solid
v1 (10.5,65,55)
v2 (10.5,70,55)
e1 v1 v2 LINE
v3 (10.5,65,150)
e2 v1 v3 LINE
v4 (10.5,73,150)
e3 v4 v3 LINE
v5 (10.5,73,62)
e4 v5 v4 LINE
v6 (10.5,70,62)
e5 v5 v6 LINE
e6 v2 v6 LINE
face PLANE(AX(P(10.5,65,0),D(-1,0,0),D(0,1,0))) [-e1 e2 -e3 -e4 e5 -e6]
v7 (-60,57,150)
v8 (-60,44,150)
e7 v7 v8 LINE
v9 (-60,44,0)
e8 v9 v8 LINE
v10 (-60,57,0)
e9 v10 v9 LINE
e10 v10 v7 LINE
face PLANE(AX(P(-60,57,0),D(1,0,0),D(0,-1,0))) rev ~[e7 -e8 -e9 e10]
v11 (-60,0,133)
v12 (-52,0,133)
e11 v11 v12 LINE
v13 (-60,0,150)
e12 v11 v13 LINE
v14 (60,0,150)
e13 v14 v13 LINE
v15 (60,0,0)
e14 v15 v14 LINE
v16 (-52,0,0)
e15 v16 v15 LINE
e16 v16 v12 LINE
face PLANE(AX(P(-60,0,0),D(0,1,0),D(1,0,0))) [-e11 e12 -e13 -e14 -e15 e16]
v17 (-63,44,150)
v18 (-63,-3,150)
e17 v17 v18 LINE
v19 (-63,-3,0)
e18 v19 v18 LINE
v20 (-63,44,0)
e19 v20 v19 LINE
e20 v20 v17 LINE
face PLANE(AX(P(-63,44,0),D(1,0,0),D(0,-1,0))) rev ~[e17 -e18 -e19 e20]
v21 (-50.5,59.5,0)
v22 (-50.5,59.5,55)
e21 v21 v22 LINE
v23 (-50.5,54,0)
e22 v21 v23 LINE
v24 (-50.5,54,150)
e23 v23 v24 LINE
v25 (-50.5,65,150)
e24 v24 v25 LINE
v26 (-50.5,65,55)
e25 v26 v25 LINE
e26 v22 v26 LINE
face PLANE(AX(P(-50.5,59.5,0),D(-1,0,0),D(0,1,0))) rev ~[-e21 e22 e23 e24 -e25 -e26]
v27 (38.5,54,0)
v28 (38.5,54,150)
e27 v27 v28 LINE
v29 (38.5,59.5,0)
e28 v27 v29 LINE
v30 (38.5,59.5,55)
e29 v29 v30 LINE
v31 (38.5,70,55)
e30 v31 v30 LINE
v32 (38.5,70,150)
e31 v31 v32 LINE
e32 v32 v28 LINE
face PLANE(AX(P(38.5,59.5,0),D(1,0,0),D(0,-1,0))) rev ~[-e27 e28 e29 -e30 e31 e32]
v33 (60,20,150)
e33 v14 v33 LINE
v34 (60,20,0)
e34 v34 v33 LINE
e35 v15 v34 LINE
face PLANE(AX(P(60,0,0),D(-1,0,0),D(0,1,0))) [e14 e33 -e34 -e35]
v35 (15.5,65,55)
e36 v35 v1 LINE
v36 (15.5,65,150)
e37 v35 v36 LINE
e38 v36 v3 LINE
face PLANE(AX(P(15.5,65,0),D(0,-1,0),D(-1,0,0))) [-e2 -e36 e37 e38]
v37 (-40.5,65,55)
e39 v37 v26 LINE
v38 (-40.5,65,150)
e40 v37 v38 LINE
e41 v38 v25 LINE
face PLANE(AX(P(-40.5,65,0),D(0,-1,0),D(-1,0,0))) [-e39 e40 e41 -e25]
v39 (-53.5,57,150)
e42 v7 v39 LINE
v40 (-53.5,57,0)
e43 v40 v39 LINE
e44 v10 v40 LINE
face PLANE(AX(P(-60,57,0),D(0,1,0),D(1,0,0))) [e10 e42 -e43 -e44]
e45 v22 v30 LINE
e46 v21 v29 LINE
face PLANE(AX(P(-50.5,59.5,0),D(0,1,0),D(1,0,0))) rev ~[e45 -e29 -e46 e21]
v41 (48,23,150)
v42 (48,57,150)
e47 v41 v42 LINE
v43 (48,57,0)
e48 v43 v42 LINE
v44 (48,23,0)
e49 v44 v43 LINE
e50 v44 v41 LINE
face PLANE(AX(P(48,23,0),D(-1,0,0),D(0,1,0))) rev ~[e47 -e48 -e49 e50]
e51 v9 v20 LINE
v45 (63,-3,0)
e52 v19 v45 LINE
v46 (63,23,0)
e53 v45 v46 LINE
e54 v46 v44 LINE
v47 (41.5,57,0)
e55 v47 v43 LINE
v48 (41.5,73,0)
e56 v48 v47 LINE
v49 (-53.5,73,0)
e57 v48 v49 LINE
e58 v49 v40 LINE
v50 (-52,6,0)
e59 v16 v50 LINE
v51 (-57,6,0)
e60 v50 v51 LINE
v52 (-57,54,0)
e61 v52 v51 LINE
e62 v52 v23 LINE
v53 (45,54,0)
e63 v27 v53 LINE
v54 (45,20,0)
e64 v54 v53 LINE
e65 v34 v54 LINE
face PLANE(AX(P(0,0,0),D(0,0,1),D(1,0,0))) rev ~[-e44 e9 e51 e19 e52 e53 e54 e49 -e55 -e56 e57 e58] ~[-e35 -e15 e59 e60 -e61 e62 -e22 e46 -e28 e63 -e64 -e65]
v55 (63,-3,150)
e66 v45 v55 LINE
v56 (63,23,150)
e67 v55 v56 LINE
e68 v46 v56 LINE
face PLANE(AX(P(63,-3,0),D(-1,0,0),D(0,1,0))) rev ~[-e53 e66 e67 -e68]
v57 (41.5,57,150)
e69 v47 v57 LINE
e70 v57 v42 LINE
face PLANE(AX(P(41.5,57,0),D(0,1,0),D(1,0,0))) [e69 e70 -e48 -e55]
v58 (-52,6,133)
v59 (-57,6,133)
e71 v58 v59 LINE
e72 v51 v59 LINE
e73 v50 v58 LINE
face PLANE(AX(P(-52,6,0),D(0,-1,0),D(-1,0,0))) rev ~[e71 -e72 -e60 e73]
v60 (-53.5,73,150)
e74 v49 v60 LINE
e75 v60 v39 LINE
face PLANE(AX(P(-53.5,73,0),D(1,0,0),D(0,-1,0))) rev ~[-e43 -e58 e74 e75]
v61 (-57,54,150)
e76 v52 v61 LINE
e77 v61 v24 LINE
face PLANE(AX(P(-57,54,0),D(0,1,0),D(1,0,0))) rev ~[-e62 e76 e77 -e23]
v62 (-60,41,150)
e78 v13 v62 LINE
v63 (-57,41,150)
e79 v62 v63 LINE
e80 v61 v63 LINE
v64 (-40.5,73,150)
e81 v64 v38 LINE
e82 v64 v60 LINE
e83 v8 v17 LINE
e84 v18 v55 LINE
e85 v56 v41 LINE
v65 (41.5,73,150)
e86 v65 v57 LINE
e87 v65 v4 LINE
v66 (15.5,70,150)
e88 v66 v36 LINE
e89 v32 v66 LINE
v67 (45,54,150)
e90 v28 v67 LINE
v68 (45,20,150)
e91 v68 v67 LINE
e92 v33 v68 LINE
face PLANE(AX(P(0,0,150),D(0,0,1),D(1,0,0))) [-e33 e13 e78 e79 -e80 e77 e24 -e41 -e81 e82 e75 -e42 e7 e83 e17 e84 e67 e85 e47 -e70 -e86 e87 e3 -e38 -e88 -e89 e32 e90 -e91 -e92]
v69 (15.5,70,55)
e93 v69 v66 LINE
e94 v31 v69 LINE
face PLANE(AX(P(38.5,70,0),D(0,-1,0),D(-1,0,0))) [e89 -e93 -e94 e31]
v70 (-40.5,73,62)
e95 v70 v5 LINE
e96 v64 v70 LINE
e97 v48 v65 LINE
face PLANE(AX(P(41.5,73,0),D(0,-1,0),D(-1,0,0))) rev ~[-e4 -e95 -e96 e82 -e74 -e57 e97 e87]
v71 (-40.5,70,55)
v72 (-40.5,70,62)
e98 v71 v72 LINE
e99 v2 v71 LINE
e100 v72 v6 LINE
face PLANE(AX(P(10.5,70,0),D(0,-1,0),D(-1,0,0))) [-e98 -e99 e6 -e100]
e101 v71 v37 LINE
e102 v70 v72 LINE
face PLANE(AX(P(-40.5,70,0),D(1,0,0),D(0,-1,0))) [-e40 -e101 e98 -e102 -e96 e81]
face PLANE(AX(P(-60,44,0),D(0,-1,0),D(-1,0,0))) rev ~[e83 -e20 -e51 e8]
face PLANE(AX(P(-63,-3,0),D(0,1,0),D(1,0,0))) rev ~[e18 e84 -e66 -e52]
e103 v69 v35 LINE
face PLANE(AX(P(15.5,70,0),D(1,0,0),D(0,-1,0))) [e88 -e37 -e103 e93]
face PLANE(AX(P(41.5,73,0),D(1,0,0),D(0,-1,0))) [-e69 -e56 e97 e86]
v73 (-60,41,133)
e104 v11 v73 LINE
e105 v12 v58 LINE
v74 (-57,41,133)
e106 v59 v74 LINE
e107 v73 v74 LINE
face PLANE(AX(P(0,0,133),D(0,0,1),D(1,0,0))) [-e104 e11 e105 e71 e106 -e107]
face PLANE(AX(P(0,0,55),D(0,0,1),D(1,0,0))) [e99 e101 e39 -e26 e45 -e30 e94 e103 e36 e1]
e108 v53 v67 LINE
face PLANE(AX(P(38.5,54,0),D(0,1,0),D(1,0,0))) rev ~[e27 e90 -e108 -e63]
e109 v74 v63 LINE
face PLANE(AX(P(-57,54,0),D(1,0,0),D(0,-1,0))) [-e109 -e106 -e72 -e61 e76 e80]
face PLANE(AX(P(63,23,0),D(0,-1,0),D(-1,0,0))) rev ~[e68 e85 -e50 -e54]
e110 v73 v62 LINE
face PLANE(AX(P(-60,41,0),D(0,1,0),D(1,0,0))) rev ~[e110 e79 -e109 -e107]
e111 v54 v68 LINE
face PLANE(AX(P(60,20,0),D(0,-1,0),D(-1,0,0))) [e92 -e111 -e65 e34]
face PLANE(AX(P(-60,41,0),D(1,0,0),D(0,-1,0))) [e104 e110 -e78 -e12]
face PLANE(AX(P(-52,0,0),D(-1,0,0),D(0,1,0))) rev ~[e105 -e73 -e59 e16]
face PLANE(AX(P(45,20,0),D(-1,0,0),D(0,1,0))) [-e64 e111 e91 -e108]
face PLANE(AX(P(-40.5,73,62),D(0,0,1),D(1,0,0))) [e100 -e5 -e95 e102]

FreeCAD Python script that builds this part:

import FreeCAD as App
import Part
import Sketcher
from FreeCAD import Vector
Q = App.Units.Quantity

doc = App.newDocument("Part")
body = doc.addObject("PartDesign::Body", "Body")

sketch1 = body.newObject("Sketcher::SketchObject", "Sketch")
sketch1.AttachmentSupport = (doc.getObject("XY_Plane"), [""])
sketch1.MapMode = "FlatFace"
sketch1.addGeometry(Part.LineSegment(Vector(-53.5, 57, 0), Vector(-60, 57, 0)), False)
sketch1.addGeometry(Part.LineSegment(Vector(-60, 57, 0), Vector(-60, 44, 0)), False)
sketch1.addGeometry(Part.LineSegment(Vector(-60, 44, 0), Vector(-63, 44, 0)), False)
sketch1.addGeometry(Part.LineSegment(Vector(-63, 44, 0), Vector(-63, -3, 0)), False)
sketch1.addGeometry(Part.LineSegment(Vector(-63, -3, 0), Vector(63, -3, 0)), False)
sketch1.addGeometry(Part.LineSegment(Vector(63, -3, 0), Vector(63, 23, 0)), False)
sketch1.addGeometry(Part.LineSegment(Vector(63, 23, 0), Vector(48, 23, 0)), False)
sketch1.addGeometry(Part.LineSegment(Vector(48, 23, 0), Vector(48, 57, 0)), False)
sketch1.addGeometry(Part.LineSegment(Vector(48, 57, 0), Vector(41.5, 57, 0)), False)
sketch1.addGeometry(Part.LineSegment(Vector(41.5, 57, 0), Vector(41.5, 73, 0)), False)
sketch1.addGeometry(Part.LineSegment(Vector(41.5, 73, 0), Vector(-53.5, 73, 0)), False)
sketch1.addGeometry(Part.LineSegment(Vector(-53.5, 73, 0), Vector(-53.5, 57, 0)), False)
sketch1.addGeometry(Part.LineSegment(Vector(-40.5, 65, 0), Vector(-40.5, 70, 0)), False)
sketch1.addGeometry(Part.LineSegment(Vector(-40.5, 70, 0), Vector(10.5, 70, 0)), False)
sketch1.addGeometry(Part.LineSegment(Vector(10.5, 70, 0), Vector(10.5, 65, 0)), False)
sketch1.addGeometry(Part.LineSegment(Vector(10.5, 65, 0), Vector(15.5, 65, 0)), False)
sketch1.addGeometry(Part.LineSegment(Vector(15.5, 65, 0), Vector(15.5, 70, 0)), False)
sketch1.addGeometry(Part.LineSegment(Vector(15.5, 70, 0), Vector(38.5, 70, 0)), False)
sketch1.addGeometry(Part.LineSegment(Vector(38.5, 70, 0), Vector(38.5, 54, 0)), False)
sketch1.addGeometry(Part.LineSegment(Vector(38.5, 54, 0), Vector(45, 54, 0)), False)
sketch1.addGeometry(Part.LineSegment(Vector(45, 54, 0), Vector(45, 20, 0)), False)
sketch1.addGeometry(Part.LineSegment(Vector(45, 20, 0), Vector(60, 20, 0)), False)
sketch1.addGeometry(Part.LineSegment(Vector(60, 20, 0), Vector(60, 0, 0)), False)
sketch1.addGeometry(Part.LineSegment(Vector(60, 0, 0), Vector(-60, 0, 0)), False)
sketch1.addGeometry(Part.LineSegment(Vector(-60, 0, 0), Vector(-60, 41, 0)), False)
sketch1.addGeometry(Part.LineSegment(Vector(-60, 41, 0), Vector(-57, 41, 0)), False)
sketch1.addGeometry(Part.LineSegment(Vector(-57, 41, 0), Vector(-57, 54, 0)), False)
sketch1.addGeometry(Part.LineSegment(Vector(-57, 54, 0), Vector(-50.5, 54, 0)), False)
sketch1.addGeometry(Part.LineSegment(Vector(-50.5, 54, 0), Vector(-50.5, 65, 0)), False)
sketch1.addGeometry(Part.LineSegment(Vector(-50.5, 65, 0), Vector(-40.5, 65, 0)), False)
sketch1.addConstraint(Sketcher.Constraint("Coincident", 0, 2, 1, 1))
sketch1.addConstraint(Sketcher.Constraint("Coincident", 1, 2, 2, 1))
sketch1.addConstraint(Sketcher.Constraint("Coincident", 2, 2, 3, 1))
sketch1.addConstraint(Sketcher.Constraint("Coincident", 3, 2, 4, 1))
sketch1.addConstraint(Sketcher.Constraint("Coincident", 4, 2, 5, 1))
sketch1.addConstraint(Sketcher.Constraint("Coincident", 5, 2, 6, 1))
sketch1.addConstraint(Sketcher.Constraint("Coincident", 6, 2, 7, 1))
sketch1.addConstraint(Sketcher.Constraint("Coincident", 7, 2, 8, 1))
sketch1.addConstraint(Sketcher.Constraint("Coincident", 8, 2, 9, 1))
sketch1.addConstraint(Sketcher.Constraint("Coincident", 9, 2, 10, 1))
sketch1.addConstraint(Sketcher.Constraint("Coincident", 10, 2, 11, 1))
sketch1.addConstraint(Sketcher.Constraint("Coincident", 11, 2, 0, 1))
sketch1.addConstraint(Sketcher.Constraint("Coincident", 12, 2, 13, 1))
sketch1.addConstraint(Sketcher.Constraint("Coincident", 13, 2, 14, 1))
sketch1.addConstraint(Sketcher.Constraint("Coincident", 14, 2, 15, 1))
sketch1.addConstraint(Sketcher.Constraint("Coincident", 15, 2, 16, 1))
sketch1.addConstraint(Sketcher.Constraint("Coincident", 16, 2, 17, 1))
sketch1.addConstraint(Sketcher.Constraint("Coincident", 17, 2, 18, 1))
sketch1.addConstraint(Sketcher.Constraint("Coincident", 18, 2, 19, 1))
sketch1.addConstraint(Sketcher.Constraint("Coincident", 19, 2, 20, 1))
sketch1.addConstraint(Sketcher.Constraint("Coincident", 20, 2, 21, 1))
sketch1.addConstraint(Sketcher.Constraint("Coincident", 21, 2, 22, 1))
sketch1.addConstraint(Sketcher.Constraint("Coincident", 22, 2, 23, 1))
sketch1.addConstraint(Sketcher.Constraint("Coincident", 23, 2, 24, 1))
sketch1.addConstraint(Sketcher.Constraint("Coincident", 24, 2, 25, 1))
sketch1.addConstraint(Sketcher.Constraint("Coincident", 25, 2, 26, 1))
sketch1.addConstraint(Sketcher.Constraint("Coincident", 26, 2, 27, 1))
sketch1.addConstraint(Sketcher.Constraint("Coincident", 27, 2, 28, 1))
sketch1.addConstraint(Sketcher.Constraint("Coincident", 28, 2, 29, 1))
sketch1.addConstraint(Sketcher.Constraint("Coincident", 29, 2, 12, 1))
sketch1.addConstraint(Sketcher.Constraint("Horizontal", 0))
sketch1.addConstraint(Sketcher.Constraint("Vertical", 1))
sketch1.addConstraint(Sketcher.Constraint("Horizontal", 2))
sketch1.addConstraint(Sketcher.Constraint("Vertical", 3))
sketch1.addConstraint(Sketcher.Constraint("Horizontal", 4))
sketch1.addConstraint(Sketcher.Constraint("Vertical", 5))
sketch1.addConstraint(Sketcher.Constraint("Horizontal", 6))
sketch1.addConstraint(Sketcher.Constraint("Vertical", 7))
sketch1.addConstraint(Sketcher.Constraint("Horizontal", 8))
sketch1.addConstraint(Sketcher.Constraint("Vertical", 9))
sketch1.addConstraint(Sketcher.Constraint("Horizontal", 10))
sketch1.addConstraint(Sketcher.Constraint("Vertical", 11))
sketch1.addConstraint(Sketcher.Constraint("Vertical", 12))
sketch1.addConstraint(Sketcher.Constraint("Horizontal", 13))
sketch1.addConstraint(Sketcher.Constraint("Vertical", 14))
sketch1.addConstraint(Sketcher.Constraint("Horizontal", 15))
sketch1.addConstraint(Sketcher.Constraint("Vertical", 16))
sketch1.addConstraint(Sketcher.Constraint("Horizontal", 17))
sketch1.addConstraint(Sketcher.Constraint("Vertical", 18))
sketch1.addConstraint(Sketcher.Constraint("Horizontal", 19))
sketch1.addConstraint(Sketcher.Constraint("Vertical", 20))
sketch1.addConstraint(Sketcher.Constraint("Horizontal", 21))
sketch1.addConstraint(Sketcher.Constraint("Vertical", 22))
sketch1.addConstraint(Sketcher.Constraint("Horizontal", 23))
sketch1.addConstraint(Sketcher.Constraint("Vertical", 24))
sketch1.addConstraint(Sketcher.Constraint("Horizontal", 25))
sketch1.addConstraint(Sketcher.Constraint("Vertical", 26))
sketch1.addConstraint(Sketcher.Constraint("Horizontal", 27))
sketch1.addConstraint(Sketcher.Constraint("Vertical", 28))
sketch1.addConstraint(Sketcher.Constraint("Horizontal", 29))
sketch1.addConstraint(Sketcher.Constraint("Symmetric", 22, 2, 23, 2, -1, 1))
sketch1.addConstraint(Sketcher.Constraint("Horizontal", 0, 2, 7, 2))
sketch1.addConstraint(Sketcher.Constraint("Horizontal", 13, 2, 16, 2))
sketch1.addConstraint(Sketcher.Constraint("Horizontal", 19, 2, 26, 2))
sketch1.addConstraint(Sketcher.Constraint("Horizontal", 15, 2, 28, 2))
sketch1.addConstraint(Sketcher.Constraint("Vertical", 1, 2, 23, 2))
sketch1.addConstraint(Sketcher.Constraint("Equal", 0, 8))
sketch1.addConstraint(Sketcher.Constraint("Equal", 8, 19))
sketch1.addConstraint(Sketcher.Constraint("Equal", 6, 21))
sketch1.addConstraint(Sketcher.Constraint("Equal", 2, 25))
sketch1.addConstraint(Sketcher.Constraint("Equal", 19, 27))
sketch1.addConstraint(Sketcher.Constraint("Equal", 15, 12))
sketch1.addConstraint(Sketcher.Constraint("Equal", 11, 18))
sketch1.addConstraint(Sketcher.Constraint("Equal", 7, 20))
sketch1.addConstraint(Sketcher.Constraint("Equal", 1, 26))
sketch1.addConstraint(Sketcher.Constraint("DistanceX", 2, 2, 2, 1, Q("3 mm")))
sketch1.addConstraint(Sketcher.Constraint("DistanceX", 6, 2, 6, 1, Q("15 mm")))
sketch1.addConstraint(Sketcher.Constraint("DistanceX", 13, 1, 13, 2, Q("51 mm")))
sketch1.addConstraint(Sketcher.Constraint("DistanceX", 15, 1, 15, 2, Q("5 mm")))
sketch1.addConstraint(Sketcher.Constraint("DistanceX", 23, 2, 23, 1, Q("120 mm")))
sketch1.addConstraint(Sketcher.Constraint("DistanceX", 29, 1, 29, 2, Q("10 mm")))
sketch1.addConstraint(Sketcher.Constraint("DistanceY", 22, 2, 22, 1, Q("20 mm")))
sketch1.addConstraint(Sketcher.Constraint("DistanceY", 24, 1, 24, 2, Q("41 mm")))
sketch1.addConstraint(Sketcher.Constraint("DistanceY", 3, 2, -1, 1, Q("3 mm")))
sketch1.addConstraint(Sketcher.Constraint("DistanceY", -1, 1, 12, 2, Q("70 mm")))
sketch1.addConstraint(Sketcher.Constraint("DistanceY", -1, 1, 18, 2, Q("54 mm")))
sketch1.addConstraint(Sketcher.Constraint("DistanceY", 12, 2, 10, 2, Q("3 mm")))
sketch1.addConstraint(Sketcher.Constraint("DistanceX", 17, 2, 9, 2, Q("3 mm")))
sketch1.addConstraint(Sketcher.Constraint("DistanceX", 10, 2, 10, 1, Q("95 mm")))
pad1 = body.newObject("PartDesign::Pad", "Pad")
pad1.Profile = sketch1
pad1.Length = 150

sketch2 = body.newObject("Sketcher::SketchObject", "Sketch001")
sketch2.AttachmentSupport = (doc.getObject("XY_Plane"), [""])
sketch2.MapMode = "FlatFace"
sketch2.addGeometry(Part.LineSegment(Vector(-60, 0, 0), Vector(-52, 0, 0)), False)
sketch2.addGeometry(Part.LineSegment(Vector(-52, 0, 0), Vector(-52, 6, 0)), False)
sketch2.addGeometry(Part.LineSegment(Vector(-52, 6, 0), Vector(-57, 6, 0)), False)
sketch2.addGeometry(Part.LineSegment(Vector(-57, 6, 0), Vector(-57, 41, 0)), False)
sketch2.addGeometry(Part.LineSegment(Vector(-57, 41, 0), Vector(-60, 41, 0)), False)
sketch2.addGeometry(Part.LineSegment(Vector(-60, 41, 0), Vector(-60, 0, 0)), False)
sketch2.addConstraint(Sketcher.Constraint("Coincident", 0, 2, 1, 1))
sketch2.addConstraint(Sketcher.Constraint("Coincident", 1, 2, 2, 1))
sketch2.addConstraint(Sketcher.Constraint("Coincident", 2, 2, 3, 1))
sketch2.addConstraint(Sketcher.Constraint("Coincident", 3, 2, 4, 1))
sketch2.addConstraint(Sketcher.Constraint("Coincident", 4, 2, 5, 1))
sketch2.addConstraint(Sketcher.Constraint("Coincident", 5, 2, 0, 1))
sketch2.addConstraint(Sketcher.Constraint("Horizontal", 0))
sketch2.addConstraint(Sketcher.Constraint("Vertical", 1))
sketch2.addConstraint(Sketcher.Constraint("Horizontal", 2))
sketch2.addConstraint(Sketcher.Constraint("Vertical", 3))
sketch2.addConstraint(Sketcher.Constraint("Horizontal", 4))
sketch2.addConstraint(Sketcher.Constraint("Vertical", 5))
sketch2.addConstraint(Sketcher.Constraint("PointOnObject", 0, 2, -1))
sketch2.addConstraint(Sketcher.Constraint("DistanceX", 0, 1, 0, 2, Q("8 mm")))
sketch2.addConstraint(Sketcher.Constraint("DistanceX", 2, 2, 2, 1, Q("5 mm")))
sketch2.addConstraint(Sketcher.Constraint("DistanceY", 1, 1, 1, 2, Q("6 mm")))
sketch2.addConstraint(Sketcher.Constraint("DistanceY", 5, 2, 5, 1, Q("41 mm")))
sketch2.addConstraint(Sketcher.Constraint("DistanceX", 0, 2, -1, 1, Q("52 mm")))
pad2 = body.newObject("PartDesign::Pad", "Pad001")
pad2.Profile = sketch2
pad2.Length = 133

sketch3 = body.newObject("Sketcher::SketchObject", "Sketch002")
sketch3.AttachmentSupport = (doc.getObject("XZ_Plane"), [""])
sketch3.MapMode = "FlatFace"
sketch3.AttachmentOffset = App.Placement(Vector(0, 0, -73), App.Rotation())
sketch3.addGeometry(Part.LineSegment(Vector(10, 62, 0), Vector(-40, 62, 0)), False)
sketch3.addGeometry(Part.LineSegment(Vector(-40, 62, 0), Vector(-40, 150, 0)), False)
sketch3.addGeometry(Part.LineSegment(Vector(-40, 150, 0), Vector(10, 150, 0)), False)
sketch3.addGeometry(Part.LineSegment(Vector(10, 150, 0), Vector(10, 62, 0)), False)
sketch3.addConstraint(Sketcher.Constraint("Coincident", 0, 2, 1, 1))
sketch3.addConstraint(Sketcher.Constraint("Coincident", 1, 2, 2, 1))
sketch3.addConstraint(Sketcher.Constraint("Coincident", 2, 2, 3, 1))
sketch3.addConstraint(Sketcher.Constraint("Coincident", 3, 2, 0, 1))
sketch3.addConstraint(Sketcher.Constraint("Horizontal", 0))
sketch3.addConstraint(Sketcher.Constraint("Vertical", 1))
sketch3.addConstraint(Sketcher.Constraint("Horizontal", 2))
sketch3.addConstraint(Sketcher.Constraint("Vertical", 3))
sketch3.addConstraint(Sketcher.Constraint("DistanceX", 0, 2, 0, 1, Q("51 mm")))
sketch3.addConstraint(Sketcher.Constraint("DistanceY", 1, 1, 1, 2, Q("88 mm")))
sketch3.addConstraint(Sketcher.Constraint("DistanceY", -1, 1, 0, 2, Q("62 mm")))
sketch3.addConstraint(Sketcher.Constraint("DistanceX", 0, 2, -1, 1, Q("40.5 mm")))
pocket1 = body.newObject("PartDesign::Pocket", "Pocket")
pocket1.Profile = sketch3
pocket1.Length = 3
pocket1.Reversed = True

sketch4 = body.newObject("Sketcher::SketchObject", "Sketch003")
sketch4.AttachmentSupport = (doc.getObject("XY_Plane"), [""])
sketch4.MapMode = "FlatFace"
sketch4.addGeometry(Part.LineSegment(Vector(-50, 65, 0), Vector(-50, 60, 0)), False)
sketch4.addGeometry(Part.LineSegment(Vector(-50, 60, 0), Vector(38, 60, 0)), False)
sketch4.addGeometry(Part.LineSegment(Vector(38, 60, 0), Vector(38, 70, 0)), False)
sketch4.addGeometry(Part.LineSegment(Vector(38, 70, 0), Vector(16, 70, 0)), False)
sketch4.addGeometry(Part.LineSegment(Vector(16, 70, 0), Vector(16, 65, 0)), False)
sketch4.addGeometry(Part.LineSegment(Vector(16, 65, 0), Vector(10, 65, 0)), False)
sketch4.addGeometry(Part.LineSegment(Vector(10, 65, 0), Vector(10, 70, 0)), False)
sketch4.addGeometry(Part.LineSegment(Vector(10, 70, 0), Vector(-40, 70, 0)), False)
sketch4.addGeometry(Part.LineSegment(Vector(-40, 70, 0), Vector(-40, 65, 0)), False)
sketch4.addGeometry(Part.LineSegment(Vector(-40, 65, 0), Vector(-50, 65, 0)), False)
sketch4.addConstraint(Sketcher.Constraint("Coincident", 0, 2, 1, 1))
sketch4.addConstraint(Sketcher.Constraint("Coincident", 1, 2, 2, 1))
sketch4.addConstraint(Sketcher.Constraint("Coincident", 2, 2, 3, 1))
sketch4.addConstraint(Sketcher.Constraint("Coincident", 3, 2, 4, 1))
sketch4.addConstraint(Sketcher.Constraint("Coincident", 4, 2, 5, 1))
sketch4.addConstraint(Sketcher.Constraint("Coincident", 5, 2, 6, 1))
sketch4.addConstraint(Sketcher.Constraint("Coincident", 6, 2, 7, 1))
sketch4.addConstraint(Sketcher.Constraint("Coincident", 7, 2, 8, 1))
sketch4.addConstraint(Sketcher.Constraint("Coincident", 8, 2, 9, 1))
sketch4.addConstraint(Sketcher.Constraint("Coincident", 9, 2, 0, 1))
sketch4.addConstraint(Sketcher.Constraint("Vertical", 0))
sketch4.addConstraint(Sketcher.Constraint("Horizontal", 1))
sketch4.addConstraint(Sketcher.Constraint("Vertical", 2))
sketch4.addConstraint(Sketcher.Constraint("Horizontal", 3))
sketch4.addConstraint(Sketcher.Constraint("Vertical", 4))
sketch4.addConstraint(Sketcher.Constraint("Horizontal", 5))
sketch4.addConstraint(Sketcher.Constraint("Vertical", 6))
sketch4.addConstraint(Sketcher.Constraint("Horizontal", 7))
sketch4.addConstraint(Sketcher.Constraint("Vertical", 8))
sketch4.addConstraint(Sketcher.Constraint("Horizontal", 9))
sketch4.addConstraint(Sketcher.Constraint("Horizontal", 3, 2, 6, 2))
sketch4.addConstraint(Sketcher.Constraint("Horizontal", 5, 2, 8, 2))
sketch4.addConstraint(Sketcher.Constraint("Equal", 5, 4))
sketch4.addConstraint(Sketcher.Constraint("DistanceX", 1, 1, 1, 2, Q("89 mm")))
sketch4.addConstraint(Sketcher.Constraint("DistanceX", 5, 2, 5, 1, Q("5 mm")))
sketch4.addConstraint(Sketcher.Constraint("DistanceX", 7, 2, 7, 1, Q("51 mm")))
sketch4.addConstraint(Sketcher.Constraint("DistanceX", 9, 2, 9, 1, Q("10 mm")))
sketch4.addConstraint(Sketcher.Constraint("DistanceY", 0, 2, 0, 1, Q("5.5 mm")))
sketch4.addConstraint(Sketcher.Constraint("DistanceY", -1, 1, 2, 2, Q("70 mm")))
sketch4.addConstraint(Sketcher.Constraint("DistanceX", 0, 2, -1, 1, Q("50.5 mm")))
pad3 = body.newObject("PartDesign::Pad", "Pad002")
pad3.Profile = sketch4
pad3.Length = 55

doc.recompute()
